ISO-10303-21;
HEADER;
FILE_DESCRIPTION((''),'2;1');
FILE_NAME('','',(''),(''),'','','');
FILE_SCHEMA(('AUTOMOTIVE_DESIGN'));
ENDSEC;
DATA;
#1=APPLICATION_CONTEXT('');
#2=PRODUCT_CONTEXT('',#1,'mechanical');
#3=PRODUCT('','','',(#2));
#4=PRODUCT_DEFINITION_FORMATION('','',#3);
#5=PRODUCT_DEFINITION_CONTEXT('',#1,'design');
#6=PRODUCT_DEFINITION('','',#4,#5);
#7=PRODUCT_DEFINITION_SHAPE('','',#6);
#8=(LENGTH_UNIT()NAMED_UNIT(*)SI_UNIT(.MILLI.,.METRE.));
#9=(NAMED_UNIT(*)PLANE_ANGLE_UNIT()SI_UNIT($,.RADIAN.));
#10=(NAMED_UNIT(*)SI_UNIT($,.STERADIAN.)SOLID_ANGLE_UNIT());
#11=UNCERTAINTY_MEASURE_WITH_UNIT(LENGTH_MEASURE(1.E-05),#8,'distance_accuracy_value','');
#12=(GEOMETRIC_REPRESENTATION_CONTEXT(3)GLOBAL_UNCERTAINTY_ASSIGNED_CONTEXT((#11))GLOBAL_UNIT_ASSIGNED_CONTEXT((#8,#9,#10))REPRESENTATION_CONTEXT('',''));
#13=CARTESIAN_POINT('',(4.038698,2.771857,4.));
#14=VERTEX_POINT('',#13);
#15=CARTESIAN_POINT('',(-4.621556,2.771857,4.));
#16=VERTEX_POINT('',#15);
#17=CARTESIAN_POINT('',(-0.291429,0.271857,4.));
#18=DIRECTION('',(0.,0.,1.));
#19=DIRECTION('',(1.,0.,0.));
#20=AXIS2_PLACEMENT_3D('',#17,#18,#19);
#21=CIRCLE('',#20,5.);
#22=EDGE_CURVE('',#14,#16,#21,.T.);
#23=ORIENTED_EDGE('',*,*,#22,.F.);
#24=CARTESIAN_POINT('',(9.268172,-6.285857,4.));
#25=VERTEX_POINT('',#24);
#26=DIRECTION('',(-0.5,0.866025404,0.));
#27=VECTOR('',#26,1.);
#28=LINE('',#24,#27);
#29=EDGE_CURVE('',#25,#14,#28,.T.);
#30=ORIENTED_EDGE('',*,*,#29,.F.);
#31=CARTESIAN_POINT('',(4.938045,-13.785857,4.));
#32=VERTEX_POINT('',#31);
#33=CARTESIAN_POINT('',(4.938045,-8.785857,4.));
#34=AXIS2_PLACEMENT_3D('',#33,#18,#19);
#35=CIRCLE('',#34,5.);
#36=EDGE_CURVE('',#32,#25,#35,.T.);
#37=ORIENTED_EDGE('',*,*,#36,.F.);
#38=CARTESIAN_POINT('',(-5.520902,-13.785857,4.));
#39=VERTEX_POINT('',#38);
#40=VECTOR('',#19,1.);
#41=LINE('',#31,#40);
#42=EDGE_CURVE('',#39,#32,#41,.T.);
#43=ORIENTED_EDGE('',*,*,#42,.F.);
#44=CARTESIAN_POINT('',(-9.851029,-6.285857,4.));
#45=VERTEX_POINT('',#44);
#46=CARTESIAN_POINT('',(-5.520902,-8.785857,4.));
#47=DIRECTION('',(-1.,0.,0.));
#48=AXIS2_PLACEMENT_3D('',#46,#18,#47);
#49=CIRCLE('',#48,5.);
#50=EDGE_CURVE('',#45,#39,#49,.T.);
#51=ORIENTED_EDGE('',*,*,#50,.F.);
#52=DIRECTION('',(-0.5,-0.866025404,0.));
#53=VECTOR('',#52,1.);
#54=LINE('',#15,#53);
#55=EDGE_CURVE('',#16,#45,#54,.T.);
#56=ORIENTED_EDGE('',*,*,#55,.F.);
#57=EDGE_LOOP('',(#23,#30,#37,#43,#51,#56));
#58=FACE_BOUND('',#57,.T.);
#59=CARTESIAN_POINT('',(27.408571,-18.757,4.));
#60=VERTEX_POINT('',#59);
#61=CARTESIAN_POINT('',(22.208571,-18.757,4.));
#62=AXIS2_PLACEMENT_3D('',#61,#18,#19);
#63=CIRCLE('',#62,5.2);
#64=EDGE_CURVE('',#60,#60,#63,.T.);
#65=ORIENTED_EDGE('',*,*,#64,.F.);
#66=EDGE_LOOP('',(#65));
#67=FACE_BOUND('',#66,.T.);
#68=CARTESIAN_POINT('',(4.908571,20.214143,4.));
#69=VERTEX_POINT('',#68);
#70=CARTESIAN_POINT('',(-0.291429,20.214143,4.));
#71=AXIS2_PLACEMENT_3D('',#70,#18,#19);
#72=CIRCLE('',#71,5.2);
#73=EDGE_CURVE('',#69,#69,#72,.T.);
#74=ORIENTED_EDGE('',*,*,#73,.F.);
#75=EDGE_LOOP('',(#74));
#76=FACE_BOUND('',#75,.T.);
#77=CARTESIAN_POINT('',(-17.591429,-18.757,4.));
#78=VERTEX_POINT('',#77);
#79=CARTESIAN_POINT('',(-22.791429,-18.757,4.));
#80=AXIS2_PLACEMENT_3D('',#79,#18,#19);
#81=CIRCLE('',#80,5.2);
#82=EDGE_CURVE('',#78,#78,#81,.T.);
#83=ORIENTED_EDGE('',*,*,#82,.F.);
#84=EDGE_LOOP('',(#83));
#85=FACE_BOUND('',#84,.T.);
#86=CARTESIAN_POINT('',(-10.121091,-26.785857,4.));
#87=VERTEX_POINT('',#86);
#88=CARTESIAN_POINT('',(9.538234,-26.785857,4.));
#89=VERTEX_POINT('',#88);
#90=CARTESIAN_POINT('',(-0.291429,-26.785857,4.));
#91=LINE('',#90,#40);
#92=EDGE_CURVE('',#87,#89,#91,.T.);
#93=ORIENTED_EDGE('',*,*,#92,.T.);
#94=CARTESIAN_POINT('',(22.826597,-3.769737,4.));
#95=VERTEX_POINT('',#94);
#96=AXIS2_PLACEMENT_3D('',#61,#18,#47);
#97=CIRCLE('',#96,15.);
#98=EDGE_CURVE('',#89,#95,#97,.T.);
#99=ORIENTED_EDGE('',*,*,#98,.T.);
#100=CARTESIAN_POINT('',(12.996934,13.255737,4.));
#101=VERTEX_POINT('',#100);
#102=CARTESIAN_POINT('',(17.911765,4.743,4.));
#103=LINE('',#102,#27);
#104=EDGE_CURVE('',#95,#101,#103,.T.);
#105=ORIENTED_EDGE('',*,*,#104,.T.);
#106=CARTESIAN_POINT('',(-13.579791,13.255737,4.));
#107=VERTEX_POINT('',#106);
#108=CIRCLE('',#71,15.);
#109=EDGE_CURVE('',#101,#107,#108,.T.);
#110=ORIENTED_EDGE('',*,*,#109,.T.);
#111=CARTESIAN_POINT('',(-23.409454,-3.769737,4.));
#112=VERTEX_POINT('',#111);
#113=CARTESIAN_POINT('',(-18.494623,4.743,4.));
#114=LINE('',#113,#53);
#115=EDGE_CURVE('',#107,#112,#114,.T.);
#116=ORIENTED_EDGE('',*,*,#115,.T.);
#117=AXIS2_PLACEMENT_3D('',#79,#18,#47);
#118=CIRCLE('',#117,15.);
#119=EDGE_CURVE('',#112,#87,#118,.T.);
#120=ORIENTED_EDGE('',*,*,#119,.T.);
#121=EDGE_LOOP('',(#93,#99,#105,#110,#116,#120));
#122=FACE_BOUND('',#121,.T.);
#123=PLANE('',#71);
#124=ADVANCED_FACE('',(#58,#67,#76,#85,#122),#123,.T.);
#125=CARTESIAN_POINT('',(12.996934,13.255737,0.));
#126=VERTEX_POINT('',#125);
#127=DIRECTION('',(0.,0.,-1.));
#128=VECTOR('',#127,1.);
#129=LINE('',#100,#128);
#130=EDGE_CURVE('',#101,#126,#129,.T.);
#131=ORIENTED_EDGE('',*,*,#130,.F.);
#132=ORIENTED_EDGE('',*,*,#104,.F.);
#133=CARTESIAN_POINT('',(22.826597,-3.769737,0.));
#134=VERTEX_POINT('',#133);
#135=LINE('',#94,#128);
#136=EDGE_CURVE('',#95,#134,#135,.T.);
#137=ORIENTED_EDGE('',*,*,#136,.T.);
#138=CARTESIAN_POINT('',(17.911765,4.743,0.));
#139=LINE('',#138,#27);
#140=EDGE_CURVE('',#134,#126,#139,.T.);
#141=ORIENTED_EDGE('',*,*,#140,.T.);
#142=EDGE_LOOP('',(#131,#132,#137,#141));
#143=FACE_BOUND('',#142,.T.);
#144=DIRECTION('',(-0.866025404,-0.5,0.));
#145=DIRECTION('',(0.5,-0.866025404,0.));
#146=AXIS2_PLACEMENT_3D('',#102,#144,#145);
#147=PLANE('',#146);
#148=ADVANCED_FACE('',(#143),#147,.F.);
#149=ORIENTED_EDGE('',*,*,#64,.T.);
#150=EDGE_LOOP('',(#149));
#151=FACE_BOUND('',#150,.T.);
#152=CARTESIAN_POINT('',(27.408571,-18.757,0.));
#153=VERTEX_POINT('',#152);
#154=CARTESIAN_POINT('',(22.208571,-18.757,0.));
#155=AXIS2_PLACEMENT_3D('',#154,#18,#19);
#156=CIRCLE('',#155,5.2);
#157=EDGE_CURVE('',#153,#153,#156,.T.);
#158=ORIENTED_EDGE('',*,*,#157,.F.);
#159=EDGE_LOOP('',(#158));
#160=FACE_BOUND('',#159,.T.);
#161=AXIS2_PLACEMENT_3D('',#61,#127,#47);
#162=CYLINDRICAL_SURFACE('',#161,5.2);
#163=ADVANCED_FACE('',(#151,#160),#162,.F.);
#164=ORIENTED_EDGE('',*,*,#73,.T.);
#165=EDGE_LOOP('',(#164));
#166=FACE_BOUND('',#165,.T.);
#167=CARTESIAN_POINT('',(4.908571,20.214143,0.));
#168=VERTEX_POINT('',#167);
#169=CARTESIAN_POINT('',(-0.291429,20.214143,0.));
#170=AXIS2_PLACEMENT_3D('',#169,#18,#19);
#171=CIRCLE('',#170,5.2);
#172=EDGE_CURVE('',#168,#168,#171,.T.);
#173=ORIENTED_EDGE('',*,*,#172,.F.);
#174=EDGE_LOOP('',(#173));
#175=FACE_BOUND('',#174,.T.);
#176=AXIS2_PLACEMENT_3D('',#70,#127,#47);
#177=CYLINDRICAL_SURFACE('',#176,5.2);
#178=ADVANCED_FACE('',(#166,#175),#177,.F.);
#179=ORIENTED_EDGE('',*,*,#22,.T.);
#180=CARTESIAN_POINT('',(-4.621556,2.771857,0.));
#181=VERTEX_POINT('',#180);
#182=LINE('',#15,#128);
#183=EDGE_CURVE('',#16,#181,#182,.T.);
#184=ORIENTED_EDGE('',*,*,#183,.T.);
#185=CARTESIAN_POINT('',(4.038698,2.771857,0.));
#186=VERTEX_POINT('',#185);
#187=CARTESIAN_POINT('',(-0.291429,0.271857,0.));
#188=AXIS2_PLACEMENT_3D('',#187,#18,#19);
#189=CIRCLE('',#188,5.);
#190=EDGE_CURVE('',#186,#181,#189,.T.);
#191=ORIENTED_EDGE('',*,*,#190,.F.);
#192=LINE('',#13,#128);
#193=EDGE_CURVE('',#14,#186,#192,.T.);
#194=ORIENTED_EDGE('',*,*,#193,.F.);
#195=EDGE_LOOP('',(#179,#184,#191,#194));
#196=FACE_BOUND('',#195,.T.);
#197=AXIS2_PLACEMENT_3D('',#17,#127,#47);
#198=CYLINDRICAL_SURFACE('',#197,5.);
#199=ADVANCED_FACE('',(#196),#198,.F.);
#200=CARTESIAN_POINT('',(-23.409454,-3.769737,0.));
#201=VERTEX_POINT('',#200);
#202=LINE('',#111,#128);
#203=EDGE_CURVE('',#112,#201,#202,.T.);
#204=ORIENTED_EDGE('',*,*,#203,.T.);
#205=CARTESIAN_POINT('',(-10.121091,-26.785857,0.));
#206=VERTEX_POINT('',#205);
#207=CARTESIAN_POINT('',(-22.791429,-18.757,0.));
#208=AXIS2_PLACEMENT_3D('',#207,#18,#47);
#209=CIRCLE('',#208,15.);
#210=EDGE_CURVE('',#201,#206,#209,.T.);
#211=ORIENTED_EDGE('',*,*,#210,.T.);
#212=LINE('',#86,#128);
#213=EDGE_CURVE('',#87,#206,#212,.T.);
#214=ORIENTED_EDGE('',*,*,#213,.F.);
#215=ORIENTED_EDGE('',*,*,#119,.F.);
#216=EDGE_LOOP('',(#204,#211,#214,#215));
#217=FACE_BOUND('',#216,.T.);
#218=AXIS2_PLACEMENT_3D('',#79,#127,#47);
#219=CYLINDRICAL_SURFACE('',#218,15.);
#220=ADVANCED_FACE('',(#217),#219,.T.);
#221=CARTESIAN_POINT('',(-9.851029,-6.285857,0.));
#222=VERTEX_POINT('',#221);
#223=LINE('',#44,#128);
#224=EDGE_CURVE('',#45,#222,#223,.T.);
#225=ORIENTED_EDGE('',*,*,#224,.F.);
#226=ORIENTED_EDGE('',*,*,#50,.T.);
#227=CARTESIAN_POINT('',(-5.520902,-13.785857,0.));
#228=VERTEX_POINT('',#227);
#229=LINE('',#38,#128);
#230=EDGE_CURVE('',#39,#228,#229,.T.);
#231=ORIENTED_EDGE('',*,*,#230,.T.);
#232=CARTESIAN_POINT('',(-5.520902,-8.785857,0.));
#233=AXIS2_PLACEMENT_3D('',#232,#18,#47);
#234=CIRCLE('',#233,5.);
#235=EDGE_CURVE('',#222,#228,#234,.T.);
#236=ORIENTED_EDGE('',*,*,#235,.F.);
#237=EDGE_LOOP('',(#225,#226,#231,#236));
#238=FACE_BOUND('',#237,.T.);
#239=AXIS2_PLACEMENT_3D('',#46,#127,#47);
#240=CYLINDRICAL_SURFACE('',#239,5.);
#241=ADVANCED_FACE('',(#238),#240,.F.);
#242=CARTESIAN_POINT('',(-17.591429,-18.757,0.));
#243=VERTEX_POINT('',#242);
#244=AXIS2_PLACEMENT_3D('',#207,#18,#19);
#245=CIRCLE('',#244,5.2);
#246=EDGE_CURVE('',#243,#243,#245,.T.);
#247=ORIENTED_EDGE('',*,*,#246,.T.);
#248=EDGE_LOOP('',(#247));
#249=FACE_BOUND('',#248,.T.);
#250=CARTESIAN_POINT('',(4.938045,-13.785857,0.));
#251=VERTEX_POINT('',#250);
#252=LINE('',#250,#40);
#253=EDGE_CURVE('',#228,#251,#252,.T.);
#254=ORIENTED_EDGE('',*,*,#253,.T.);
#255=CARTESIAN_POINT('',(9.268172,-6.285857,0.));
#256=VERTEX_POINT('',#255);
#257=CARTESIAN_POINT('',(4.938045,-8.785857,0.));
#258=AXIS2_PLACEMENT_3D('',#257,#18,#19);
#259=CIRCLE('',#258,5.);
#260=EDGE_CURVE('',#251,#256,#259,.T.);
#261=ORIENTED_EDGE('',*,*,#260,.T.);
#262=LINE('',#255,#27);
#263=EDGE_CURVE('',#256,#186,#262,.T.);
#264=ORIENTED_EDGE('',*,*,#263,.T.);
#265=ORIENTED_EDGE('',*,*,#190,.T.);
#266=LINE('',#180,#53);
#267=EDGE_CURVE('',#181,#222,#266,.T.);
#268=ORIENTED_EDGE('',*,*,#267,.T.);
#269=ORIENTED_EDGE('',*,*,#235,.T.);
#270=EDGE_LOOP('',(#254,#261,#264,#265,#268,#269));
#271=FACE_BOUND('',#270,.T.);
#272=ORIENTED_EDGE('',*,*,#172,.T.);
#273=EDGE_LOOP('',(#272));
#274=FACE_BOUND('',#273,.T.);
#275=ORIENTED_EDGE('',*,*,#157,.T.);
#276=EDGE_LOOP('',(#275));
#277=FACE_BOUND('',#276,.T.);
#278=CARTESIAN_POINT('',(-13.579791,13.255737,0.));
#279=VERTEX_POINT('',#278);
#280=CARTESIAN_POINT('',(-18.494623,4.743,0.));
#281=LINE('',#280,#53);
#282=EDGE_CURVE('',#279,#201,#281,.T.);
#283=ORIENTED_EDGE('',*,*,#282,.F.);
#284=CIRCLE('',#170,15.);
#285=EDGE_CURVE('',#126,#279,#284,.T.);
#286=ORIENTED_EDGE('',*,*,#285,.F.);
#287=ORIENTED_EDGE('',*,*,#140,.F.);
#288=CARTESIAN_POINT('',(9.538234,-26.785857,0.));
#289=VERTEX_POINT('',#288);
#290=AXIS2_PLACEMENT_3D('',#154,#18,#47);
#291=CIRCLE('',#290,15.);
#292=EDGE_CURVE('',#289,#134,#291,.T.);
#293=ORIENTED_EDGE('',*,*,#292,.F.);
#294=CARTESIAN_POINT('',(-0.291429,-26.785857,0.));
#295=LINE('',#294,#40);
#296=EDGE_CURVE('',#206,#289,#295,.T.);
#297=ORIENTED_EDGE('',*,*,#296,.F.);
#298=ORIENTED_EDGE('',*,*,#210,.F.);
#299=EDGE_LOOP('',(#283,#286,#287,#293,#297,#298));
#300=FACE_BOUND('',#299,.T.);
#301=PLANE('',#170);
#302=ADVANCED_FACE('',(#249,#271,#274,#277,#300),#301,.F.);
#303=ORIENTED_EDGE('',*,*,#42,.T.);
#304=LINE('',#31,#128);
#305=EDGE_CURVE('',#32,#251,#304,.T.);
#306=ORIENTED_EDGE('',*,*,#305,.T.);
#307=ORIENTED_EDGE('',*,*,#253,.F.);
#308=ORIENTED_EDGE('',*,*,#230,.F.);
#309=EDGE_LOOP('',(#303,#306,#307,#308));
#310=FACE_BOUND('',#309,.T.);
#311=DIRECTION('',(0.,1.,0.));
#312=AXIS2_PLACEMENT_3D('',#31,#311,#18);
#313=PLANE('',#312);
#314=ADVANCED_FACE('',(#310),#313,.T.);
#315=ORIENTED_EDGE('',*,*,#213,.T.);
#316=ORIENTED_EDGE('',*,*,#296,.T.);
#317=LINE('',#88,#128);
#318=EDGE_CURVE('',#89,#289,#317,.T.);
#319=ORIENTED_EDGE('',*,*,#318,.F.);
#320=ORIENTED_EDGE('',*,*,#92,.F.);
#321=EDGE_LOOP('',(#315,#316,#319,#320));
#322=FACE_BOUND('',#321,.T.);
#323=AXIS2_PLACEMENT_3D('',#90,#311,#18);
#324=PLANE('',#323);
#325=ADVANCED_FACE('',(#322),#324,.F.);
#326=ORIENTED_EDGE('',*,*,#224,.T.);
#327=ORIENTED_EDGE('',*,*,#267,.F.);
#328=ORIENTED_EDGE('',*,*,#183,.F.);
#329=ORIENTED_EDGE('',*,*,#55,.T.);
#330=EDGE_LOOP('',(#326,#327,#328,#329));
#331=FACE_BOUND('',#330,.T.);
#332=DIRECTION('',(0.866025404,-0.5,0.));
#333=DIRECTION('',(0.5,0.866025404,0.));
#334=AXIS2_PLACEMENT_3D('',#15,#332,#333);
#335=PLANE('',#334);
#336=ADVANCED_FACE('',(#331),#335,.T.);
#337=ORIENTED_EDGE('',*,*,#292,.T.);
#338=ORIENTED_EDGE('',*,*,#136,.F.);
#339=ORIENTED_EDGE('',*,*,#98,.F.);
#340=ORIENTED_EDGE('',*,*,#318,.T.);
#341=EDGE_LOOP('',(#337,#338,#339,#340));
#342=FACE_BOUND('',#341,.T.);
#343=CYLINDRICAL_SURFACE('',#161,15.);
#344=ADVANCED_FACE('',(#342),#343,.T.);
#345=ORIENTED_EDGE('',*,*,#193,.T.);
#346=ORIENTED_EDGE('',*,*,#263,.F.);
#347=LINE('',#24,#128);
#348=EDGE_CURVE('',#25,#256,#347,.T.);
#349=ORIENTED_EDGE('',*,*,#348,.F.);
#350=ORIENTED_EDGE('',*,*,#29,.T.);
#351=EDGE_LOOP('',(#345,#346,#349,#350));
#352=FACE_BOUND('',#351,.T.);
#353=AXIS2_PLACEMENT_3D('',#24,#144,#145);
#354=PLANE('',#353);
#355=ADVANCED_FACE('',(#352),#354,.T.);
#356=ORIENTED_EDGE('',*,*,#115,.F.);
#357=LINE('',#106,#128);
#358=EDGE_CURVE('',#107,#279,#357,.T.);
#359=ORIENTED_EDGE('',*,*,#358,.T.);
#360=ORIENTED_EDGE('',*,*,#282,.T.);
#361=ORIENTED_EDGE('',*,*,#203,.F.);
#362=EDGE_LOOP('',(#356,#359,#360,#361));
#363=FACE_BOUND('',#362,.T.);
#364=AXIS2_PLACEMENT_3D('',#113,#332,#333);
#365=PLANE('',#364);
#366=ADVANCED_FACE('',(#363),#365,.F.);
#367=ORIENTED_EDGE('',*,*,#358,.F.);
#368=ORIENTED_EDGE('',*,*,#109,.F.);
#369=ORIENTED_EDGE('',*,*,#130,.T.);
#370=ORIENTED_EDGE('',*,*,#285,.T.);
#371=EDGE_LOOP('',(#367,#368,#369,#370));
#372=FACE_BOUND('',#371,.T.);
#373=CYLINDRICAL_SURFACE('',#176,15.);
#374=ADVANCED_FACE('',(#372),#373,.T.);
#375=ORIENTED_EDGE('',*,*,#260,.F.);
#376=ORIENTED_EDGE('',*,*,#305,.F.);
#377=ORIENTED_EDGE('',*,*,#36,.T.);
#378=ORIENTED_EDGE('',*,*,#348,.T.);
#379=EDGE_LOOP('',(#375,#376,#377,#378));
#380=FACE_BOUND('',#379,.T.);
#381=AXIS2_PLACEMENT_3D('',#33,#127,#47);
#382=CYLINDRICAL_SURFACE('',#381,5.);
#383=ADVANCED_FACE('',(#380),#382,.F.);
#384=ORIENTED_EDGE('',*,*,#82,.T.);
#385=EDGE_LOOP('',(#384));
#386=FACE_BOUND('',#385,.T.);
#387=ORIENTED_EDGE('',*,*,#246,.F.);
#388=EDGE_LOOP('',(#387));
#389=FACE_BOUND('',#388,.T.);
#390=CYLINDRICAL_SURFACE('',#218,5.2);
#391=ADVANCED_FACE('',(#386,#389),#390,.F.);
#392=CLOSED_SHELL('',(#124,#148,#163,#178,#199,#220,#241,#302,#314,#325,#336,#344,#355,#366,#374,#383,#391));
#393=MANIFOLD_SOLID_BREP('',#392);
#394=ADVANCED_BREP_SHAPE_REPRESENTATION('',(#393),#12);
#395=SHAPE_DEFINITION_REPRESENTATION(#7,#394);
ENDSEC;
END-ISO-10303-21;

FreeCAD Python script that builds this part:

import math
import FreeCAD as App
import Part
import Sketcher
from FreeCAD import Vector
Q = App.Units.Quantity

doc = App.newDocument("Part")
body = doc.addObject("PartDesign::Body", "Body")

sketch1 = body.newObject("Sketcher::SketchObject", "Sketch")
sketch1.AttachmentSupport = (doc.getObject("XY_Plane"), [""])
sketch1.MapMode = "FlatFace"
sketch1.addGeometry([
    Part.LineSegment(Vector(-18.5, 4.7, 0), Vector(-23.4, -3.8, 0)),
    Part.ArcOfCircle(Part.Circle(Vector(-22.8, -18.8, 0), Vector(0, 0, 1), 15), math.radians(92), math.radians(328)),
    Part.LineSegment(Vector(-10.1, -26.8, 0), Vector(9.5, -26.8, 0)),
    Part.ArcOfCircle(Part.Circle(Vector(22.2, -18.8, 0), Vector(0, 0, 1), 15), math.radians(-148), math.radians(88)),
    Part.LineSegment(Vector(22.8, -3.8, 0), Vector(17.9, 4.7, 0)),
    Part.LineSegment(Vector(17.9, 4.7, 0), Vector(13, 13.3, 0)),
    Part.ArcOfCircle(Part.Circle(Vector(-0.3, 20.2, 0), Vector(0, 0, 1), 15), math.radians(-28), math.radians(208)),
    Part.LineSegment(Vector(-13.6, 13.3, 0), Vector(-18.5, 4.7, 0)),
    Part.Circle(Vector(-22.8, -18.8, 0), Vector(0, 0, 1), 5.2),
    Part.LineSegment(Vector(4, 2.8, 0), Vector(9.3, -6.3, 0)),
    Part.ArcOfCircle(Part.Circle(Vector(4.9, -8.8, 0), Vector(0, 0, 1), 5), math.radians(-90), math.radians(30)),
    Part.LineSegment(Vector(4.9, -13.8, 0), Vector(-5.5, -13.8, 0)),
    Part.ArcOfCircle(Part.Circle(Vector(-5.5, -8.8, 0), Vector(0, 0, 1), 5), math.radians(150), math.radians(270)),
    Part.LineSegment(Vector(-9.9, -6.3, 0), Vector(-4.6, 2.8, 0)),
    Part.ArcOfCircle(Part.Circle(Vector(-0.3, 0.3, 0), Vector(0, 0, 1), 5), math.radians(30), math.radians(150)),
    Part.Circle(Vector(22.2, -18.8, 0), Vector(0, 0, 1), 5.2),
    Part.Circle(Vector(-0.3, 20.2, 0), Vector(0, 0, 1), 5.2),
], False)
sketch1.addConstraint([
    Sketcher.Constraint("Coincident", 0, 2, 1, 1),
    Sketcher.Constraint("Coincident", 1, 2, 2, 1),
    Sketcher.Constraint("Coincident", 2, 2, 3, 1),
    Sketcher.Constraint("Coincident", 3, 2, 4, 1),
    Sketcher.Constraint("Coincident", 4, 2, 5, 1),
    Sketcher.Constraint("Coincident", 5, 2, 6, 1),
    Sketcher.Constraint("Coincident", 6, 2, 7, 1),
    Sketcher.Constraint("Coincident", 7, 2, 0, 1),
    Sketcher.Constraint("Tangent", 9, 2, 10, 2),
    Sketcher.Constraint("Tangent", 10, 1, 11, 1),
    Sketcher.Constraint("Tangent", 11, 2, 12, 2),
    Sketcher.Constraint("Tangent", 12, 1, 13, 1),
    Sketcher.Constraint("Tangent", 13, 2, 14, 2),
    Sketcher.Constraint("Tangent", 14, 1, 9, 1),
    Sketcher.Constraint("Horizontal", 2),
    Sketcher.Constraint("Horizontal", 11),
    Sketcher.Constraint("Coincident", 8, 3, 1, 3),
    Sketcher.Constraint("Coincident", 15, 3, 3, 3),
    Sketcher.Constraint("Coincident", 16, 3, 6, 3),
    Sketcher.Constraint("Equal", 1, 3),
    Sketcher.Constraint("Equal", 3, 6),
    Sketcher.Constraint("Equal", 10, 12),
    Sketcher.Constraint("Equal", 12, 14),
    Sketcher.Constraint("Equal", 8, 15),
    Sketcher.Constraint("Equal", 15, 16),
    Sketcher.Constraint("Parallel", 4, 5),
    Sketcher.Constraint("Parallel", 0, 7),
    Sketcher.Constraint("Parallel", 5, 9),
    Sketcher.Constraint("Parallel", 7, 13),
    Sketcher.Constraint("Horizontal", 1, 3, 3, 3),
    Sketcher.Constraint("Horizontal", 0, 2, 3, 2),
    Sketcher.Constraint("Horizontal", 5, 2, 6, 2),
    Sketcher.Constraint("Horizontal", 4, 2, 7, 2),
    Sketcher.Constraint("Horizontal", 9, 2, 12, 1),
    Sketcher.Constraint("Vertical", 6, 3, 14, 3),
    Sketcher.Constraint("Equal", 4, 5),
    Sketcher.Constraint("Radius", 1, 15.0),
    Sketcher.Constraint("Radius", 10, 5.0),
    Sketcher.Constraint("Diameter", 8, 10.4),
    Sketcher.Constraint("Angle", 0, Q("-120 deg")),
    Sketcher.Constraint("DistanceX", 1, 3, 3, 3, 45.0),
    Sketcher.Constraint("DistanceY", 10, 3, 6, 3, 29.0),
    Sketcher.Constraint("DistanceY", 1, 2, 12, 3, 18.0),
    Sketcher.Constraint("DistanceY", 3, 3, 4, 2, 23.5),
    Sketcher.Constraint("DistanceY", 1, 3, -1, 1, 18.757),
    Sketcher.Constraint("DistanceX", 12, 3, -1, 1, 5.520902),
    Sketcher.Constraint("DistanceX", -1, 1, 14, 1, 4.038698),
    Sketcher.Constraint("DistanceX", 0, 2, 10, 3, 28.347499),
])
pad1 = body.newObject("PartDesign::Pad", "Pad")
pad1.Profile = sketch1
pad1.Length = 4

doc.recompute()
